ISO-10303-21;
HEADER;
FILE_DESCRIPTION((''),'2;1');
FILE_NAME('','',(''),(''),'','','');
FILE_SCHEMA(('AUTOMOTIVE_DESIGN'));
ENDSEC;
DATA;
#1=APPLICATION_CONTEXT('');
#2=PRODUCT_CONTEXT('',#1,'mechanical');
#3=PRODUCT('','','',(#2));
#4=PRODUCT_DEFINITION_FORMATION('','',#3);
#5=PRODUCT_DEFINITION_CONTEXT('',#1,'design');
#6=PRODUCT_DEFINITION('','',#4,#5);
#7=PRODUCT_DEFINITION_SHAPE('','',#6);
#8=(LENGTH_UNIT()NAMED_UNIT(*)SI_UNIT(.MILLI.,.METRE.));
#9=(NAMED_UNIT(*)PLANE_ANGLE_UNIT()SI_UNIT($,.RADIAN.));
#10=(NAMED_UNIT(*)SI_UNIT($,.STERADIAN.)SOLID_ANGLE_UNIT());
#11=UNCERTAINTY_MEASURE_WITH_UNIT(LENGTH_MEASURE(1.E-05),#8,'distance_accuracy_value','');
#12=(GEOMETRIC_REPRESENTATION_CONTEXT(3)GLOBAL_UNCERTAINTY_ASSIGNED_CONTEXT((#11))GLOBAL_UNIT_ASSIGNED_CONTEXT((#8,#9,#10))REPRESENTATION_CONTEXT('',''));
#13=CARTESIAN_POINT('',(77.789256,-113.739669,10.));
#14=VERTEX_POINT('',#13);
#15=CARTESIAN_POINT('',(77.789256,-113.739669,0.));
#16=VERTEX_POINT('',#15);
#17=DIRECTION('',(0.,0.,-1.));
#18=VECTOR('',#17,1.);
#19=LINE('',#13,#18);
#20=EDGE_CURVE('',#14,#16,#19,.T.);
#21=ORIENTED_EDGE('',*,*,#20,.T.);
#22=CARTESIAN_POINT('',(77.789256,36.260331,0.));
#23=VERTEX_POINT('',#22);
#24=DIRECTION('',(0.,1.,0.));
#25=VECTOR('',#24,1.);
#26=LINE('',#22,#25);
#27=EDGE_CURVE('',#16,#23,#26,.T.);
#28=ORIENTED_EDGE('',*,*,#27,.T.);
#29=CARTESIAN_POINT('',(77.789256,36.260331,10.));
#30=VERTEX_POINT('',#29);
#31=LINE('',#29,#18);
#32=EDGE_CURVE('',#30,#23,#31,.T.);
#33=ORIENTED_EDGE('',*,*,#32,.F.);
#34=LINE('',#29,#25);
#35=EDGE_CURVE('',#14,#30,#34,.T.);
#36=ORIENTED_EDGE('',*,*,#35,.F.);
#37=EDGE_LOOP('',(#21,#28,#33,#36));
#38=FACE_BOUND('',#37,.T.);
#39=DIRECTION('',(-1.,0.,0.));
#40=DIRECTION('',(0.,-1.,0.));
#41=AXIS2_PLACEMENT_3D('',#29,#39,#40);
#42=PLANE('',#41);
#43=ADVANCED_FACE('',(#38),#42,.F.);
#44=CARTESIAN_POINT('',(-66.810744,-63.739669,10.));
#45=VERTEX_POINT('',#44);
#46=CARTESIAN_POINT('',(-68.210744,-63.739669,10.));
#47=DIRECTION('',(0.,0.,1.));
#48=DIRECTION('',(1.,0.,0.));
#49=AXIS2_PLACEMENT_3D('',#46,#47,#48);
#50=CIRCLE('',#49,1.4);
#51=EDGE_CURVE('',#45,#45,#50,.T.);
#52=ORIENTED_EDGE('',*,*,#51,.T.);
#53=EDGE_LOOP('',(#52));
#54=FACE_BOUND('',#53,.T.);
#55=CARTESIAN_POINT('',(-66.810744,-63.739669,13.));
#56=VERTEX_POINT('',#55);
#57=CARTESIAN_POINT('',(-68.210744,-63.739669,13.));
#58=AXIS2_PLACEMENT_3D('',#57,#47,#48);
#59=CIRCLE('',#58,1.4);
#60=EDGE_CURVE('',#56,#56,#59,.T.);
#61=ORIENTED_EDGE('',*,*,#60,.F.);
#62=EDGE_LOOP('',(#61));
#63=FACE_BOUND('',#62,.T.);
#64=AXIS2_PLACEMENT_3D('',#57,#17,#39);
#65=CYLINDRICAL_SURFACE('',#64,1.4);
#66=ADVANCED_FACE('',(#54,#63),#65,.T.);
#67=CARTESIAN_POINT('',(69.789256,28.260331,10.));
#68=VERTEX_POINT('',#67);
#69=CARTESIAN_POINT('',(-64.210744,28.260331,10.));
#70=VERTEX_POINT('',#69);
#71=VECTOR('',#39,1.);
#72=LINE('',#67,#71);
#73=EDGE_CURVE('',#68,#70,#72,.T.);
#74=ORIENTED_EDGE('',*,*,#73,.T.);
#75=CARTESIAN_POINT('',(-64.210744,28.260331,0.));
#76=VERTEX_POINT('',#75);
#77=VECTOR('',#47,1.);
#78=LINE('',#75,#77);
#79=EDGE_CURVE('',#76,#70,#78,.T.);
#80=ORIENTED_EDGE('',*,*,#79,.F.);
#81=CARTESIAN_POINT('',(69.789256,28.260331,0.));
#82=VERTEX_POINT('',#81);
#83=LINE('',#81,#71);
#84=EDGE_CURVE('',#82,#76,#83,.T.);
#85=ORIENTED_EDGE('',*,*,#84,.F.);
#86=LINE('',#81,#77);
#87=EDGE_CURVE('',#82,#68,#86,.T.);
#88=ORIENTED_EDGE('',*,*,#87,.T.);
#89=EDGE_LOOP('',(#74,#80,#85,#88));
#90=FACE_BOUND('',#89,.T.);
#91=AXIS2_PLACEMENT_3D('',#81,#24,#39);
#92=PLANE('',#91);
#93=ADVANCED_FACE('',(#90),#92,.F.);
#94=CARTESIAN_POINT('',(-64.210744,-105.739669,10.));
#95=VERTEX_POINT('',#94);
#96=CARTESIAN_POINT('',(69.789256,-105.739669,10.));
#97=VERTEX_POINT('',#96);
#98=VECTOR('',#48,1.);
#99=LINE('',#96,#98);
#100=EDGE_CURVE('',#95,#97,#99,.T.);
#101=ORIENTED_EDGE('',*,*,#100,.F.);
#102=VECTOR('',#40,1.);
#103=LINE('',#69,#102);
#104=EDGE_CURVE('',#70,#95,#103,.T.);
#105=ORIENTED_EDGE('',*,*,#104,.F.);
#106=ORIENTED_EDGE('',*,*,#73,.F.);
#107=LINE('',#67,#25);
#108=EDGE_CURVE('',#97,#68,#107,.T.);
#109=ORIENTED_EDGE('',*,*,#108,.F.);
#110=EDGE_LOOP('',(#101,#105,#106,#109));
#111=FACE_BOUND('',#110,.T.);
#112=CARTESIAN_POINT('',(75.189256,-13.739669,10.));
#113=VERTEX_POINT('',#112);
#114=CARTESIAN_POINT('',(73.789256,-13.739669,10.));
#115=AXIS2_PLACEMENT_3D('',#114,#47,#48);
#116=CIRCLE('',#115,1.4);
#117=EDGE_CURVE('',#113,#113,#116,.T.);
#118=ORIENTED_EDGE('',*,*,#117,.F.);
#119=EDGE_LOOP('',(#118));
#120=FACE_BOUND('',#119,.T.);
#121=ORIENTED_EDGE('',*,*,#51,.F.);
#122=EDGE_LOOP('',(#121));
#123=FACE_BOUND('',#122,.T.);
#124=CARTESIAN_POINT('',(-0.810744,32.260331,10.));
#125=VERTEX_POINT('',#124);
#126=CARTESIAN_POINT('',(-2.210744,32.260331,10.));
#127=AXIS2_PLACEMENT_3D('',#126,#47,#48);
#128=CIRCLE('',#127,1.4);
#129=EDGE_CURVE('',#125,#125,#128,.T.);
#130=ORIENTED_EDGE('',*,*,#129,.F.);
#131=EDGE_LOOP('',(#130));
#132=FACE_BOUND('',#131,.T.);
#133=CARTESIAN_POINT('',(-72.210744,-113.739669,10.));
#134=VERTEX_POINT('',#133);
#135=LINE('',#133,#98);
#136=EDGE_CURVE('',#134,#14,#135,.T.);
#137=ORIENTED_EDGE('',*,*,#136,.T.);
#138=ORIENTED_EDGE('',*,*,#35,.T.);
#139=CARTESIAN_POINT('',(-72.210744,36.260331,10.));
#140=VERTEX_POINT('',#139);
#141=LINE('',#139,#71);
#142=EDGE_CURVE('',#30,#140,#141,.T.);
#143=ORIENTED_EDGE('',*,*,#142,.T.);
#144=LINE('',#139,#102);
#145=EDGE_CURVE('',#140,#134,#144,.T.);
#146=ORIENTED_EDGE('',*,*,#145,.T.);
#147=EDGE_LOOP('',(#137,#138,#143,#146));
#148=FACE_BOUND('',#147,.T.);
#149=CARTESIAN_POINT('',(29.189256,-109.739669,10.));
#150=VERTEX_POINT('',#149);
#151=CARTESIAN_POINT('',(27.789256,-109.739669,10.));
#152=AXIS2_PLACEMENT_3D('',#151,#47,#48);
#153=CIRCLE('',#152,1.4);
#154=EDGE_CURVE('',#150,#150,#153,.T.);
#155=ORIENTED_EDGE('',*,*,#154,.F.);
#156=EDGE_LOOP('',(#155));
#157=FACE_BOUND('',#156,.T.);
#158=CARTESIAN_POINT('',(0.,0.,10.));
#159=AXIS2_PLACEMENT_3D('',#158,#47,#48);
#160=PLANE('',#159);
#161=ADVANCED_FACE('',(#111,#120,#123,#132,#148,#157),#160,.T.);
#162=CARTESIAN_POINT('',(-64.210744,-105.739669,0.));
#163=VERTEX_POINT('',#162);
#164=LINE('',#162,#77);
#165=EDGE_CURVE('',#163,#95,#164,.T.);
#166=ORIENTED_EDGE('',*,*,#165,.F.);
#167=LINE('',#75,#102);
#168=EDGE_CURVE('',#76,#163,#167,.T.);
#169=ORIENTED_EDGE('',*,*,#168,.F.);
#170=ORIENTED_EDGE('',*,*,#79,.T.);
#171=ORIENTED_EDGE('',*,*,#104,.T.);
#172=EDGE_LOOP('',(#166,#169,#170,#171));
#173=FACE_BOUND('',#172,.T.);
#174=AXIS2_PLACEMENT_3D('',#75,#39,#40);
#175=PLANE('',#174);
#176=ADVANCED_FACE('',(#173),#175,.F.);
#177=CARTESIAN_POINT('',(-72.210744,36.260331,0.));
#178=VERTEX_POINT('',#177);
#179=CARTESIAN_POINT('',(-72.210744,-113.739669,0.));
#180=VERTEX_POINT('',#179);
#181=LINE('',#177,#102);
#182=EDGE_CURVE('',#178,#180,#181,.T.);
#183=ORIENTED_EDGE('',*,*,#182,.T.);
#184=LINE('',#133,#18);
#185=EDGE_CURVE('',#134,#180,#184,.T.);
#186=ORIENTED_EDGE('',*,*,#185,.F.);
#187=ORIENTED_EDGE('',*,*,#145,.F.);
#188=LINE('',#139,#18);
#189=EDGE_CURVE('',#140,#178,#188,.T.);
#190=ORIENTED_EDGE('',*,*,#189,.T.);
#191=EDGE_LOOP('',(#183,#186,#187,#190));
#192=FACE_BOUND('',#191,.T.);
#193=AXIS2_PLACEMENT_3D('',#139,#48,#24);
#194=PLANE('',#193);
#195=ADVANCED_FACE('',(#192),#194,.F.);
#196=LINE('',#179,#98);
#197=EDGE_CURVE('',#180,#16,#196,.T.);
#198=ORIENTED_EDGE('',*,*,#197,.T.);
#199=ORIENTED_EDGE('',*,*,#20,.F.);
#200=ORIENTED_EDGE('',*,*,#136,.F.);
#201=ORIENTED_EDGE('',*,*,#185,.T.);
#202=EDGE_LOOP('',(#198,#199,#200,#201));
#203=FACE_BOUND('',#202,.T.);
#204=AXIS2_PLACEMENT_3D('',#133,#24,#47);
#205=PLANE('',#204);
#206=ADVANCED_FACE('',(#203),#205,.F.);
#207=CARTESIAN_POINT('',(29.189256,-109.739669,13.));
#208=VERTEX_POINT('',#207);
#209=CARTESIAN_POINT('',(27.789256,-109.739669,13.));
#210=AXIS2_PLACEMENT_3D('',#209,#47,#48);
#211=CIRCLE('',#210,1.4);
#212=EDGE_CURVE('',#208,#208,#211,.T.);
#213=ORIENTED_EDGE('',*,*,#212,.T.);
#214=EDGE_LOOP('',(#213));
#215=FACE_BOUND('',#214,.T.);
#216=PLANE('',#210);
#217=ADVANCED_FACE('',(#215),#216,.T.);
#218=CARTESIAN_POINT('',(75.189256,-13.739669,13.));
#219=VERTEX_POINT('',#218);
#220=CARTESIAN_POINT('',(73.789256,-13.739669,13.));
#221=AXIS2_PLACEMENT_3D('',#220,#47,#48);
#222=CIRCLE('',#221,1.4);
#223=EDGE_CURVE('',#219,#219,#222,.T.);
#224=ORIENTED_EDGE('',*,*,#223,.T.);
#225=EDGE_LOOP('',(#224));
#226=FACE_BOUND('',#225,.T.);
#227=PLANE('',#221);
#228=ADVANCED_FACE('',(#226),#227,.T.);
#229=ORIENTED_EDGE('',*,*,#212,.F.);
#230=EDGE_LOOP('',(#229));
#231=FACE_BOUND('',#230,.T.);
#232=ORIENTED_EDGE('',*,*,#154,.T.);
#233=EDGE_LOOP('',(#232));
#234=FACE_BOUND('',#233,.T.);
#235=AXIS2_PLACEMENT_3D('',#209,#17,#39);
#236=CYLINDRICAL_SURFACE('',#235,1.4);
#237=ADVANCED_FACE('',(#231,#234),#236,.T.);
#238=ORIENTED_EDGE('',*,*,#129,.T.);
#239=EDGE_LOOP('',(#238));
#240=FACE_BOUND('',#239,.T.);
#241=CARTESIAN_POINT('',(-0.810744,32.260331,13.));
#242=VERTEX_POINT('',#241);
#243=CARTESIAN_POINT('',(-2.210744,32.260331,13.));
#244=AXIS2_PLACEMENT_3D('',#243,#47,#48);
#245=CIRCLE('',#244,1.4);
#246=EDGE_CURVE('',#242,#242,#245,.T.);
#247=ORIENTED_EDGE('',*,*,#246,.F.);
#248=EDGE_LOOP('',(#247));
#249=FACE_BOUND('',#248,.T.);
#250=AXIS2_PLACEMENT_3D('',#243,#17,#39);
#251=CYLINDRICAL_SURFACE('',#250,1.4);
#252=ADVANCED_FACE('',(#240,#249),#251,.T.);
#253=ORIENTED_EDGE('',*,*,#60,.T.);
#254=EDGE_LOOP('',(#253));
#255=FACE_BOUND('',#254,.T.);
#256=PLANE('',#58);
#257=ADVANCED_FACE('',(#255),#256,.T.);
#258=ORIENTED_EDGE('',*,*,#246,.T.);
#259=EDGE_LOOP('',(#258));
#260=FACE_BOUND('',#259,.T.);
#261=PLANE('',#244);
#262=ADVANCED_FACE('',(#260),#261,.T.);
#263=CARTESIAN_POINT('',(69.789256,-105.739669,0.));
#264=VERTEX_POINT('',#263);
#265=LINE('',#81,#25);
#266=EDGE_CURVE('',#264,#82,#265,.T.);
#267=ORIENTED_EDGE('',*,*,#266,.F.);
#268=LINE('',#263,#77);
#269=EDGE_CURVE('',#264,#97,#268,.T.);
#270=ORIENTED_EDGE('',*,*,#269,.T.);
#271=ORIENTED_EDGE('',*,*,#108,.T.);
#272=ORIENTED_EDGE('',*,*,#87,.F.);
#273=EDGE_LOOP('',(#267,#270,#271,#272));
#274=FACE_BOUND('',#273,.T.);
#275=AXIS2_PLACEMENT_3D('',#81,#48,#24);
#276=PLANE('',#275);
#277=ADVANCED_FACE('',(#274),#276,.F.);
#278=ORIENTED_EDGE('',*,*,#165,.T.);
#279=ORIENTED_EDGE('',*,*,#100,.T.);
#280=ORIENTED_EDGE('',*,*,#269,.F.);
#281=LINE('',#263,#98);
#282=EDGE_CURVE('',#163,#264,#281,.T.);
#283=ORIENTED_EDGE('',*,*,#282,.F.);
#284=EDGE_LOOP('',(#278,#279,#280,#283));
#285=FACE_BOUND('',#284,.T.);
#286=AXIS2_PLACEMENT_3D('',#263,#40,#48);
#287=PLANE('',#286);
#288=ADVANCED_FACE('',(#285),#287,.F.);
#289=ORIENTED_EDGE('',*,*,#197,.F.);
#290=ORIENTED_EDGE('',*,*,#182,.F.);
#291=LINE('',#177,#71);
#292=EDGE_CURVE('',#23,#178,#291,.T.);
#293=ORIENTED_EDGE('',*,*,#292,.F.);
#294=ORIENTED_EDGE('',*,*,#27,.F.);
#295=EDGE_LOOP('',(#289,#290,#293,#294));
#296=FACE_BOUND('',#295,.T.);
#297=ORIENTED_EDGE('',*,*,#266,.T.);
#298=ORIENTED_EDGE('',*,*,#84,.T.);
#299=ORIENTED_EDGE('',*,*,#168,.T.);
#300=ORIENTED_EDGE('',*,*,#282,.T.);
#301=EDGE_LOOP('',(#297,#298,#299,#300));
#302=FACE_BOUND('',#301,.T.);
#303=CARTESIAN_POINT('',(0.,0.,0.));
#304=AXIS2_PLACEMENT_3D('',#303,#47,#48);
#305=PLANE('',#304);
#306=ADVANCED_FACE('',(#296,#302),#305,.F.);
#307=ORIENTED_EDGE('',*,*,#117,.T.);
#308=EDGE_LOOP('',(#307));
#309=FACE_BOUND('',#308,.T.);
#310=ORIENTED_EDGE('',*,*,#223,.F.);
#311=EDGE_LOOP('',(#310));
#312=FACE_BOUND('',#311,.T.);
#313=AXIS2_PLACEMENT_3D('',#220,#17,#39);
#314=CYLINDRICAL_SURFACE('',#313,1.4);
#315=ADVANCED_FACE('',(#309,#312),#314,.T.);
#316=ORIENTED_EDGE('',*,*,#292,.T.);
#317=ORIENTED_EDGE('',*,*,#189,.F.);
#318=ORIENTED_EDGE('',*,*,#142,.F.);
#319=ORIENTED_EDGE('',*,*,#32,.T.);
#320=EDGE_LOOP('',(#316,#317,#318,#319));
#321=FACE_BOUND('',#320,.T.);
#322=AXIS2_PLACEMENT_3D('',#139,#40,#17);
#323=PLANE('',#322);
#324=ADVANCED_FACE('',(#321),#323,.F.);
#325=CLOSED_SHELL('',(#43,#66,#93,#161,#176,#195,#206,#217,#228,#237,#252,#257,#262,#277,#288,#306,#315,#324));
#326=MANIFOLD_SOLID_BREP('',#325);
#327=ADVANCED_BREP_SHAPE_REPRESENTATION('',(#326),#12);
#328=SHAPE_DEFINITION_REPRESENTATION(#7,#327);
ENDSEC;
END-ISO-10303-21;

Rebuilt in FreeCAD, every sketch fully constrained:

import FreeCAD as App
import Part
import Sketcher
from FreeCAD import Vector
Q = App.Units.Quantity

doc = App.newDocument("Part")
body = doc.addObject("PartDesign::Body", "Body")

sketch1 = body.newObject("Sketcher::SketchObject", "Sketch")
sketch1.AttachmentSupport = (doc.getObject("XY_Plane"), [""])
sketch1.MapMode = "FlatFace"
sketch1.addGeometry([
    Part.LineSegment(Vector(-72.210744, 36.260331, 0), Vector(-72.210744, -113.739669, 0)),
    Part.LineSegment(Vector(-72.210744, -113.739669, 0), Vector(77.789256, -113.739669, 0)),
    Part.LineSegment(Vector(77.789256, -113.739669, 0), Vector(77.789256, 36.260331, 0)),
    Part.LineSegment(Vector(77.789256, 36.260331, 0), Vector(-72.210744, 36.260331, 0)),
], False)
sketch1.addConstraint([
    Sketcher.Constraint("Coincident", 0, 2, 1, 1),
    Sketcher.Constraint("Coincident", 1, 2, 2, 1),
    Sketcher.Constraint("Coincident", 2, 2, 3, 1),
    Sketcher.Constraint("Coincident", 3, 2, 0, 1),
    Sketcher.Constraint("Vertical", 0),
    Sketcher.Constraint("Horizontal", 1),
    Sketcher.Constraint("Vertical", 2),
    Sketcher.Constraint("Horizontal", 3),
    Sketcher.Constraint("Equal", 3, 0),
    Sketcher.Constraint("DistanceX", 1, 1, 1, 2, Q("150 mm")),
    Sketcher.Constraint("DistanceY", 0, 2, -1, 1, Q("113.739669 mm")),
    Sketcher.Constraint("DistanceX", 0, 2, -1, 1, Q("72.210744 mm")),
])
pad1 = body.newObject("PartDesign::Pad", "Pad")
pad1.Profile = sketch1
pad1.Length = 10

sketch2 = body.newObject("Sketcher::SketchObject", "Sketch001")
sketch2.AttachmentSupport = (doc.getObject("XY_Plane"), [""])
sketch2.MapMode = "FlatFace"
sketch2.AttachmentOffset = App.Placement(Vector(0, 0, 10), App.Rotation())
sketch2.addGeometry([
    Part.LineSegment(Vector(-64.210744, 28.260331, 0), Vector(-64.210744, -105.739669, 0)),
    Part.LineSegment(Vector(-64.210744, -105.739669, 0), Vector(69.789256, -105.739669, 0)),
    Part.LineSegment(Vector(69.789256, -105.739669, 0), Vector(69.789256, 28.260331, 0)),
    Part.LineSegment(Vector(69.789256, 28.260331, 0), Vector(-64.210744, 28.260331, 0)),
], False)
sketch2.addConstraint([
    Sketcher.Constraint("Coincident", 0, 2, 1, 1),
    Sketcher.Constraint("Coincident", 1, 2, 2, 1),
    Sketcher.Constraint("Coincident", 2, 2, 3, 1),
    Sketcher.Constraint("Coincident", 3, 2, 0, 1),
    Sketcher.Constraint("Vertical", 0),
    Sketcher.Constraint("Horizontal", 1),
    Sketcher.Constraint("Vertical", 2),
    Sketcher.Constraint("Horizontal", 3),
    Sketcher.Constraint("Equal", 3, 0),
    Sketcher.Constraint("DistanceX", 1, 1, 1, 2, Q("134 mm")),
    Sketcher.Constraint("DistanceY", 0, 2, -1, 1, Q("105.739669 mm")),
    Sketcher.Constraint("DistanceX", 0, 2, -1, 1, Q("64.210744 mm")),
])
pocket1 = body.newObject("PartDesign::Pocket", "Pocket")
pocket1.Profile = sketch2
pocket1.Type = "ThroughAll"

sketch3 = body.newObject("Sketcher::SketchObject", "Sketch002")
sketch3.AttachmentSupport = (doc.getObject("XY_Plane"), [""])
sketch3.MapMode = "FlatFace"
sketch3.AttachmentOffset = App.Placement(Vector(0, 0, 10), App.Rotation())
sketch3.addGeometry([
    Part.Circle(Vector(73.789256, -13.739669, 0), Vector(0, 0, 1), 1.4),
    Part.Circle(Vector(27.789256, -109.739669, 0), Vector(0, 0, 1), 1.4),
    Part.Circle(Vector(-68.210744, -63.739669, 0), Vector(0, 0, 1), 1.4),
    Part.Circle(Vector(-2.210744, 32.260331, 0), Vector(0, 0, 1), 1.4),
], False)
sketch3.addConstraint([
    Sketcher.Constraint("Equal", 0, 1),
    Sketcher.Constraint("Equal", 1, 2),
    Sketcher.Constraint("Equal", 2, 3),
    Sketcher.Constraint("Diameter", 0, Q("2.8 mm")),
    Sketcher.Constraint("DistanceX", 1, 3, 0, 3, Q("46 mm")),
    Sketcher.Constraint("DistanceY", 1, 3, 0, 3, Q("96 mm")),
    Sketcher.Constraint("DistanceX", 2, 3, 1, 3, Q("96 mm")),
    Sketcher.Constraint("DistanceY", 1, 3, 2, 3, Q("46 mm")),
    Sketcher.Constraint("DistanceX", 3, 3, 0, 3, Q("76 mm")),
    Sketcher.Constraint("DistanceY", 0, 3, 3, 3, Q("46 mm")),
    Sketcher.Constraint("DistanceY", 0, 3, -1, 1, Q("13.739669 mm")),
    Sketcher.Constraint("DistanceX", -1, 1, 0, 3, Q("73.789256 mm")),
])
pad2 = body.newObject("PartDesign::Pad", "Pad001")
pad2.Profile = sketch3
pad2.Length = 3

doc.recompute()
